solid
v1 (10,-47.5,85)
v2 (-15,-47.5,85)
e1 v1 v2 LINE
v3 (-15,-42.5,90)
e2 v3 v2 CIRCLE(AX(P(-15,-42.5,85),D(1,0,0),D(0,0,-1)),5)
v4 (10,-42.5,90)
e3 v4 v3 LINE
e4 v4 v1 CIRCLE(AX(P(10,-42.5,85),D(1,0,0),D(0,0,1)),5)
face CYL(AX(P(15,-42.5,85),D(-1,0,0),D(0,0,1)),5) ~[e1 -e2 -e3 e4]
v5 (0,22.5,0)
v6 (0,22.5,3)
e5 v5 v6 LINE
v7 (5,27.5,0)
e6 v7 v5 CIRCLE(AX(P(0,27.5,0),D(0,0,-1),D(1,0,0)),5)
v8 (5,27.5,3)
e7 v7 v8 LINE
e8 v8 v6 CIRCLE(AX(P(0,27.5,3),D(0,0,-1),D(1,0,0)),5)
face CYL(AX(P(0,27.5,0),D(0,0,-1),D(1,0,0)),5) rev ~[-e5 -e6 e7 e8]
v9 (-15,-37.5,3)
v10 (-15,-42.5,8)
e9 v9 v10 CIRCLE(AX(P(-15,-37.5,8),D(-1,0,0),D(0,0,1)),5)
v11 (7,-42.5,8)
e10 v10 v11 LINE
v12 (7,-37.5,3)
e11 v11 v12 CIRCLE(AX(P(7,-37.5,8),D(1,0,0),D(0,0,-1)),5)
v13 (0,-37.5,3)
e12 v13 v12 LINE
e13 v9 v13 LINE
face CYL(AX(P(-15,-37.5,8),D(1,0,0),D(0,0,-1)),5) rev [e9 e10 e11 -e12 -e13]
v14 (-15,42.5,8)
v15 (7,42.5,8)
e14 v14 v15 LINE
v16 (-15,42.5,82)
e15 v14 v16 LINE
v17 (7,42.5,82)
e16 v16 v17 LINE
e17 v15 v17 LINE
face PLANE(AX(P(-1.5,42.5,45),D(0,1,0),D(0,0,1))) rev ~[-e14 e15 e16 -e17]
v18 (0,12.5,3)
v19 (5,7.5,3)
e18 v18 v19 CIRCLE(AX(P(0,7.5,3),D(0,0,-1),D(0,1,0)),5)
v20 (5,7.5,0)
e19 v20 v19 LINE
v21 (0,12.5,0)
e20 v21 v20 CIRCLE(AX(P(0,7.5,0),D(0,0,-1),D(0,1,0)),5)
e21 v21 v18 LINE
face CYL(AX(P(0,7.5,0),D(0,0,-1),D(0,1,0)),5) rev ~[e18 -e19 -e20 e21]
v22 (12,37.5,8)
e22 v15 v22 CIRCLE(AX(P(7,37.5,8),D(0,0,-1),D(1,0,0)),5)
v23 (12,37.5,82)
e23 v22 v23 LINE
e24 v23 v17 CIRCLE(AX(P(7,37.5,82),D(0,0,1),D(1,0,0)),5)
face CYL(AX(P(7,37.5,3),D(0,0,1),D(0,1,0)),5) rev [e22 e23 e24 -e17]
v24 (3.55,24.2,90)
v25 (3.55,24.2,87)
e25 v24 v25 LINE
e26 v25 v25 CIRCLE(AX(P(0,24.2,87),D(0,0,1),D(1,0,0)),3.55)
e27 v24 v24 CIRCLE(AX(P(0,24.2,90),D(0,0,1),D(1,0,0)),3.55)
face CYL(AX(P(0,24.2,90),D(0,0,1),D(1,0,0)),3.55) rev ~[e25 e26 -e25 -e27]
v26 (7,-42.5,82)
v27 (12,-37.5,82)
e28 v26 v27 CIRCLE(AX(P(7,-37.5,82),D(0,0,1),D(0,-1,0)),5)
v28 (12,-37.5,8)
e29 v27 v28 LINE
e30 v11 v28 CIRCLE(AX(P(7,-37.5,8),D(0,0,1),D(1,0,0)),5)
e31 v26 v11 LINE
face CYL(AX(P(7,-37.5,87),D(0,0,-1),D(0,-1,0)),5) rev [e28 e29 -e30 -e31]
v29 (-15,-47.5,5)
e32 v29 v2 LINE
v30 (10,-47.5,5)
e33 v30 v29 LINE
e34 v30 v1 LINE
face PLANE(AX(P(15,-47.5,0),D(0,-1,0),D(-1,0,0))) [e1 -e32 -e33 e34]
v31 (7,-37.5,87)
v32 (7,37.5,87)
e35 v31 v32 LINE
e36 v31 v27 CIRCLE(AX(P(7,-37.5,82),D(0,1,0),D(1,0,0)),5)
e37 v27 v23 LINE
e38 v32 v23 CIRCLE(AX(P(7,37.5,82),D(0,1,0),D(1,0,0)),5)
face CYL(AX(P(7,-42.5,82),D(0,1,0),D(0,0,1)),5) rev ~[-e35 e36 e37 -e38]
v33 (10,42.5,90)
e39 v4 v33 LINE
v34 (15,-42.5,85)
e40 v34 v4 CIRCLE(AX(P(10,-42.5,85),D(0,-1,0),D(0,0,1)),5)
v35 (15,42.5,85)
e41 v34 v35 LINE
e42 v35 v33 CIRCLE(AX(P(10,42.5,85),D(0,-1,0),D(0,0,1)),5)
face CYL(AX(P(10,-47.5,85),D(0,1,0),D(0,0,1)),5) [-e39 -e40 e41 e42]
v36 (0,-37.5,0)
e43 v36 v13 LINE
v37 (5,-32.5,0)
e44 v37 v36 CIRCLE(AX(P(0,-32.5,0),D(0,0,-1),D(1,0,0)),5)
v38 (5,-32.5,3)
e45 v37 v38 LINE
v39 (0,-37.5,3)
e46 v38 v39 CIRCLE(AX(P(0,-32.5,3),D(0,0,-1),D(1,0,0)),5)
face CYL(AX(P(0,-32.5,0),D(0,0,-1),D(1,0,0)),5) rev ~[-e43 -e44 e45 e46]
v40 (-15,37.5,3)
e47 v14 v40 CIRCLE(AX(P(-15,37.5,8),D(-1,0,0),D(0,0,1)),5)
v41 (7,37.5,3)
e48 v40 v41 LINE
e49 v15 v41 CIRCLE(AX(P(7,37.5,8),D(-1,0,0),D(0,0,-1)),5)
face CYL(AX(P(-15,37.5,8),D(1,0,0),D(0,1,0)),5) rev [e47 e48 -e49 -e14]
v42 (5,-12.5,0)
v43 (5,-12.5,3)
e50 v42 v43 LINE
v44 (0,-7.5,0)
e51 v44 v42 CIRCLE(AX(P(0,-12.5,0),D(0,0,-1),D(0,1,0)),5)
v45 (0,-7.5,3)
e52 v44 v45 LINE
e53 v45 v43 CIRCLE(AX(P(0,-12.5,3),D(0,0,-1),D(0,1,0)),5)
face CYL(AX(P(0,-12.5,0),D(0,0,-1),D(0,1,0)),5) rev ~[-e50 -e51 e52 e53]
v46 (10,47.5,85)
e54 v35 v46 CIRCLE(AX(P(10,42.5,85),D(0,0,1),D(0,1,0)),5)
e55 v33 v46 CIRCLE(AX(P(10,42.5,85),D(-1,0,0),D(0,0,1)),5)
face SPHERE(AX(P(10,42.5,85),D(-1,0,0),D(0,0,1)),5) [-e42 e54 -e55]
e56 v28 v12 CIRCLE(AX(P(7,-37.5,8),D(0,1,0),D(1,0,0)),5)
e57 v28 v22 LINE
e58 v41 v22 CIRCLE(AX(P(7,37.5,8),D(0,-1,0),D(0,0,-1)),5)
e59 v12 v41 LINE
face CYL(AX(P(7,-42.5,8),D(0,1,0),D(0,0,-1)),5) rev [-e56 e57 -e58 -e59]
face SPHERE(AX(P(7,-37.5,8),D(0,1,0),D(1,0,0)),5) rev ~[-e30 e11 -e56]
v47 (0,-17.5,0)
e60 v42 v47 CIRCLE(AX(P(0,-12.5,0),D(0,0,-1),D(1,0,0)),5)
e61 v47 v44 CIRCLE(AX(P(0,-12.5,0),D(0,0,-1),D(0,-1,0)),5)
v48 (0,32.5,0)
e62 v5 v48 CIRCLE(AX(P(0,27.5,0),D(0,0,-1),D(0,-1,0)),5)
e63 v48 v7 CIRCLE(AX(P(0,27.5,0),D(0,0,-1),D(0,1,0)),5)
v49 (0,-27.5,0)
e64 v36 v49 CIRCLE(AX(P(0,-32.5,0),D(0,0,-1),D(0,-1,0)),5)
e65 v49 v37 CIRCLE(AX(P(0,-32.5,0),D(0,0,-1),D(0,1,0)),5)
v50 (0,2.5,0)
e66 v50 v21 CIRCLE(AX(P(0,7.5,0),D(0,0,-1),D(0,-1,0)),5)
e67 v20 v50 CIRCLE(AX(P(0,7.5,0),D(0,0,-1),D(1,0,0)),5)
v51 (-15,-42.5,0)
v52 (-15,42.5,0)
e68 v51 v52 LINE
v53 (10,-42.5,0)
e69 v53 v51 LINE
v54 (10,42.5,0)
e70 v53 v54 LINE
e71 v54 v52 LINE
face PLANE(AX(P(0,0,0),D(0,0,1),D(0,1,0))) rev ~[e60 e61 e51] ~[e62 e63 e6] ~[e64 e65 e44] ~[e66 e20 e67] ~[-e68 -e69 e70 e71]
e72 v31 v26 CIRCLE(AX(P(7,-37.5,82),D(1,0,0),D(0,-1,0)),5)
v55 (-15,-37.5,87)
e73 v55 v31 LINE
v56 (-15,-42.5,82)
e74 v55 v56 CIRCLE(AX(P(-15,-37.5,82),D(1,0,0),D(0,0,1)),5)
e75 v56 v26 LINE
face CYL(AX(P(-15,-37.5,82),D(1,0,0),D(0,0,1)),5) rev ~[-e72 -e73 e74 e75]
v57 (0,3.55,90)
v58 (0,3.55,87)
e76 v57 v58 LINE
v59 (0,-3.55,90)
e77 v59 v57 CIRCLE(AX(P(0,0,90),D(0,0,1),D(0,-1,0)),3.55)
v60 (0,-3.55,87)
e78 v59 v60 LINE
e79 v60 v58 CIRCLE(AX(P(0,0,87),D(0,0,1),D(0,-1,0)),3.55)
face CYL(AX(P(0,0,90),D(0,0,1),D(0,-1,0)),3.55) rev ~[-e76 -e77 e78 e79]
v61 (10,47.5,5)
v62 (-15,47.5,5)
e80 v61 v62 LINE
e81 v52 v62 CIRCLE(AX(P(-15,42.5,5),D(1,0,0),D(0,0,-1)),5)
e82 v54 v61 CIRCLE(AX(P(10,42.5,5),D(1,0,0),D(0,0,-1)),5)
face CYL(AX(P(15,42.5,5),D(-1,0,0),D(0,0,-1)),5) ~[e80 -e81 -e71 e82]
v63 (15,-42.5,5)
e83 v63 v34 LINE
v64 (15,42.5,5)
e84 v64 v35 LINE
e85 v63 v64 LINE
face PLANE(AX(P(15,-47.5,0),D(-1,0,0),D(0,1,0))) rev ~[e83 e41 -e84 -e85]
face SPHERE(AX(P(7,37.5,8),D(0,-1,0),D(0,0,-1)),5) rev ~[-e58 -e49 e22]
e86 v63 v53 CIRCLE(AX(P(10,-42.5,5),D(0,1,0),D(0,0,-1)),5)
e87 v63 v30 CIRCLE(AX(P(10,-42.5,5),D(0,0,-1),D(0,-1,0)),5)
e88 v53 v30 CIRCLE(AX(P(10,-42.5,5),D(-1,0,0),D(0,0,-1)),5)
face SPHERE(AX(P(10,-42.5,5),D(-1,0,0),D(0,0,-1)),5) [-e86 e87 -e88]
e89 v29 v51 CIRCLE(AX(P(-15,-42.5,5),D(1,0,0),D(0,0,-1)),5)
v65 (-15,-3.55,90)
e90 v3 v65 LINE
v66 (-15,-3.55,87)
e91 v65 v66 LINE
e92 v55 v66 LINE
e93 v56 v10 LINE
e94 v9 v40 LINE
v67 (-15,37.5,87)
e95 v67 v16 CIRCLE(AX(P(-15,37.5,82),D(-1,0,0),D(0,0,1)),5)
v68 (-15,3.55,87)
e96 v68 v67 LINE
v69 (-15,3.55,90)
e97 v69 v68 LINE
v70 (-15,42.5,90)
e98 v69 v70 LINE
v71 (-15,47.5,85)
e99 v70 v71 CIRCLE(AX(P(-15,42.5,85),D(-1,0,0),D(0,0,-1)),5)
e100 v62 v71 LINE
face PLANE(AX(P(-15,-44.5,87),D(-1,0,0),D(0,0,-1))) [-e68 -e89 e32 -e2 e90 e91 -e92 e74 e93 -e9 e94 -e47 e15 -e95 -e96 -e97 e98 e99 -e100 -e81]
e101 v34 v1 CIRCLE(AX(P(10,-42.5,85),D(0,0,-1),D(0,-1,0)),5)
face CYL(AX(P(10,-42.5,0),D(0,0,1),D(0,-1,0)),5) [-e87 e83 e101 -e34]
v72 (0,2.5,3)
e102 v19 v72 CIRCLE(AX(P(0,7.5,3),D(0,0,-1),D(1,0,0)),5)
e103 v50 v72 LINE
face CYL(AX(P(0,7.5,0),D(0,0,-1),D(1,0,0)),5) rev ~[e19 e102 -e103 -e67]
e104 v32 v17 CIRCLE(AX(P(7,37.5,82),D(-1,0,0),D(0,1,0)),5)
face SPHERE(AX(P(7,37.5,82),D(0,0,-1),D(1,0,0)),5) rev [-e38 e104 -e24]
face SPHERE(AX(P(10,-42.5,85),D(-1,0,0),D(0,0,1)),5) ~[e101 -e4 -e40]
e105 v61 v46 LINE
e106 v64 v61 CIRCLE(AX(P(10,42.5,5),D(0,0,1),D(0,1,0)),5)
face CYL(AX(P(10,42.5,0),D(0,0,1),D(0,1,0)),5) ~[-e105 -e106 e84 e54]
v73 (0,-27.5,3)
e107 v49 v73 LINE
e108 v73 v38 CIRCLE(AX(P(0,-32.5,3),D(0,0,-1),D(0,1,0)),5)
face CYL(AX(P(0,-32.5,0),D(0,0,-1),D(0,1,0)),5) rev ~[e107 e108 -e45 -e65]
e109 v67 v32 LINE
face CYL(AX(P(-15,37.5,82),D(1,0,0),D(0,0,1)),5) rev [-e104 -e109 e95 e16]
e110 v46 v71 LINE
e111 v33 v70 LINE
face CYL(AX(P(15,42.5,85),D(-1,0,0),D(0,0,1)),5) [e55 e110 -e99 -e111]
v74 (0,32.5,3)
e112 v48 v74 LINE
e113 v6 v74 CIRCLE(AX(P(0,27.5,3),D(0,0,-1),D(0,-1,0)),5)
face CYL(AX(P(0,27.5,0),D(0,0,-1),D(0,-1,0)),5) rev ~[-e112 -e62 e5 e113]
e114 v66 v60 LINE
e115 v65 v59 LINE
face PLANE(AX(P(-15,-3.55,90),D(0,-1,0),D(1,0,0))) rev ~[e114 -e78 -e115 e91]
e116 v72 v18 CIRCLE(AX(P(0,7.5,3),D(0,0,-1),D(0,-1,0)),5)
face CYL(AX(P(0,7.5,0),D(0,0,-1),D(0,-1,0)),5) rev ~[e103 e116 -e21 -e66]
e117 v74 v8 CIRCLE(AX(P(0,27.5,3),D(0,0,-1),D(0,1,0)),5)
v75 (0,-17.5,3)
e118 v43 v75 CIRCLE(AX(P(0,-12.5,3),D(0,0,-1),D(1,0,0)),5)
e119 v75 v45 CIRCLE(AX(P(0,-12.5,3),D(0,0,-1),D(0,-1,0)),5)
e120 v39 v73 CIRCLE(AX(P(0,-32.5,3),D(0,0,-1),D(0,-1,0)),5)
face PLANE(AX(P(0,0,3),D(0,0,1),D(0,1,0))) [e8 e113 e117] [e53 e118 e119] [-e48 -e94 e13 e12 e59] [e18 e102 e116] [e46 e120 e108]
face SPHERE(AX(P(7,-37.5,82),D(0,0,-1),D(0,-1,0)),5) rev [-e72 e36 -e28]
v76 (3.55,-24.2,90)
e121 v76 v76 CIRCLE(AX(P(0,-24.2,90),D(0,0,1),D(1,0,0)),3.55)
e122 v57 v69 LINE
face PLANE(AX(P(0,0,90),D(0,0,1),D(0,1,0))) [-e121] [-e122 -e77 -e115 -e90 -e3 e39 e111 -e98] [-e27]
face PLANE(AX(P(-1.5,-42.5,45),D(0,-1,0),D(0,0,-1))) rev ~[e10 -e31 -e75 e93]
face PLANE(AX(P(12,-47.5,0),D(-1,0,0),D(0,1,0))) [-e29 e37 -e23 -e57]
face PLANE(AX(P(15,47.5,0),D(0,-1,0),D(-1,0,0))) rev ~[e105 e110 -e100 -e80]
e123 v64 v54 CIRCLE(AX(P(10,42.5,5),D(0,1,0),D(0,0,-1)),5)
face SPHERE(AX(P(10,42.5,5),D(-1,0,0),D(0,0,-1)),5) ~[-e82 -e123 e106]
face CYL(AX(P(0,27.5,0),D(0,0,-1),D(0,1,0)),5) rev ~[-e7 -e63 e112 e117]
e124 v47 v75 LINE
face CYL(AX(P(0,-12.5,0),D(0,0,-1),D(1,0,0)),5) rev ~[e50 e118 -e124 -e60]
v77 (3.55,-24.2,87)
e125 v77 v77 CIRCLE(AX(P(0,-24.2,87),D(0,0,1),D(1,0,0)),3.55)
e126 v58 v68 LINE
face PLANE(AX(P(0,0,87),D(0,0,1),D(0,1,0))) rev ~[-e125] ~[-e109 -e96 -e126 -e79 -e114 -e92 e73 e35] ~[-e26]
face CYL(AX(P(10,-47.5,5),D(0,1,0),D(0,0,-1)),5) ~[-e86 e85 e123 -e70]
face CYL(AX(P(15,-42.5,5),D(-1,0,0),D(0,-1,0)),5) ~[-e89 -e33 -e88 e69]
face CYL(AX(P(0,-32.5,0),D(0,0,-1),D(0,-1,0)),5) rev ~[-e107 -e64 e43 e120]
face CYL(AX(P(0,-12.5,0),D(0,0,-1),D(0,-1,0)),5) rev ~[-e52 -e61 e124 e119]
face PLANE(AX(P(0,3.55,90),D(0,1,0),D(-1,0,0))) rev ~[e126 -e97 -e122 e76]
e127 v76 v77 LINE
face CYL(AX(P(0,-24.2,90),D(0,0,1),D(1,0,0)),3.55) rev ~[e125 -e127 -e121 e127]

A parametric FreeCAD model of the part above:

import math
import FreeCAD as App
import Part
import Sketcher
from FreeCAD import Vector
Q = App.Units.Quantity


def edges_at(feature, points):
    """Names of the edges that pass closest to the given points."""
    edges = feature.Shape.Edges
    near = lambda p: min(range(len(edges)), key=lambda i: edges[i].distToShape(Part.Vertex(*p))[0])
    return sorted({f"Edge{near(p) + 1}" for p in points})


def faces_at(feature, points):
    """Names of the faces that lie closest to the given points."""
    faces = feature.Shape.Faces
    near = lambda p: min(range(len(faces)), key=lambda i: faces[i].distToShape(Part.Vertex(*p))[0])
    return sorted({f"Face{near(p) + 1}" for p in points})

doc = App.newDocument("Part")
body = doc.addObject("PartDesign::Body", "Body")

sketch1 = body.newObject("Sketcher::SketchObject", "Sketch")
sketch1.AttachmentSupport = (doc.getObject("XY_Plane"), [""])
sketch1.MapMode = "FlatFace"
sketch1.addGeometry(Part.LineSegment(Vector(-15, -48, 0), Vector(15, -48, 0)), False)
sketch1.addGeometry(Part.LineSegment(Vector(15, -48, 0), Vector(15, 48, 0)), False)
sketch1.addGeometry(Part.LineSegment(Vector(15, 48, 0), Vector(-15, 48, 0)), False)
sketch1.addGeometry(Part.LineSegment(Vector(-15, 48, 0), Vector(-15, -48, 0)), False)
sketch1.addConstraint(Sketcher.Constraint("Coincident", 0, 2, 1, 1))
sketch1.addConstraint(Sketcher.Constraint("Coincident", 1, 2, 2, 1))
sketch1.addConstraint(Sketcher.Constraint("Coincident", 2, 2, 3, 1))
sketch1.addConstraint(Sketcher.Constraint("Coincident", 3, 2, 0, 1))
sketch1.addConstraint(Sketcher.Constraint("Horizontal", 0))
sketch1.addConstraint(Sketcher.Constraint("Vertical", 1))
sketch1.addConstraint(Sketcher.Constraint("Horizontal", 2))
sketch1.addConstraint(Sketcher.Constraint("Vertical", 3))
sketch1.addConstraint(Sketcher.Constraint("Symmetric", 0, 2, 2, 2, -1, 1))
sketch1.addConstraint(Sketcher.Constraint("DistanceX", 0, 1, 0, 2, Q("30 mm")))
sketch1.addConstraint(Sketcher.Constraint("DistanceY", 1, 1, 1, 2, Q("95 mm")))
pad1 = body.newObject("PartDesign::Pad", "Pad")
pad1.Profile = sketch1
pad1.Length = 90
doc.recompute()

thickness = body.newObject("PartDesign::Thickness", "Thickness")
thickness.Base = (pad1, faces_at(pad1, [(-15, 0, 45)]))
thickness.Value = 3
thickness.Reversed = True
thickness.Join = "Intersection"

sketch2 = body.newObject("Sketcher::SketchObject", "Sketch001")
sketch2.AttachmentSupport = (doc.getObject("XZ_Plane"), [""])
sketch2.MapMode = "FlatFace"
sketch2.AttachmentOffset = App.Placement(Vector(0, 0, -44.5), App.Rotation())
sketch2.addGeometry(Part.LineSegment(Vector(12, 3, 0), Vector(-15, 3, 0)), False)
sketch2.addGeometry(Part.LineSegment(Vector(-15, 3, 0), Vector(-15, 87, 0)), False)
sketch2.addGeometry(Part.LineSegment(Vector(-15, 87, 0), Vector(12, 87, 0)), False)
sketch2.addGeometry(Part.LineSegment(Vector(12, 87, 0), Vector(12, 3, 0)), False)
sketch2.addConstraint(Sketcher.Constraint("Coincident", 0, 2, 1, 1))
sketch2.addConstraint(Sketcher.Constraint("Coincident", 1, 2, 2, 1))
sketch2.addConstraint(Sketcher.Constraint("Coincident", 2, 2, 3, 1))
sketch2.addConstraint(Sketcher.Constraint("Coincident", 3, 2, 0, 1))
sketch2.addConstraint(Sketcher.Constraint("Horizontal", 0))
sketch2.addConstraint(Sketcher.Constraint("Vertical", 1))
sketch2.addConstraint(Sketcher.Constraint("Horizontal", 2))
sketch2.addConstraint(Sketcher.Constraint("Vertical", 3))
sketch2.addConstraint(Sketcher.Constraint("DistanceX", 0, 2, 0, 1, Q("27 mm")))
sketch2.addConstraint(Sketcher.Constraint("DistanceY", 1, 1, 1, 2, Q("84 mm")))
sketch2.addConstraint(Sketcher.Constraint("DistanceX", 0, 2, -1, 1, Q("15 mm")))
sketch2.addConstraint(Sketcher.Constraint("DistanceY", -1, 1, 0, 2, Q("3 mm")))
pad2 = body.newObject("PartDesign::Pad", "Pad001")
pad2.Profile = sketch2
pad2.Length = 2

sketch3 = body.newObject("Sketcher::SketchObject", "Sketch002")
sketch3.AttachmentSupport = (doc.getObject("XZ_Plane"), [""])
sketch3.MapMode = "FlatFace"
sketch3.AttachmentOffset = App.Placement(Vector(0, 0, 44.5), App.Rotation())
sketch3.addGeometry(Part.LineSegment(Vector(12, 87, 0), Vector(-15, 87, 0)), False)
sketch3.addGeometry(Part.LineSegment(Vector(-15, 87, 0), Vector(-15, 3, 0)), False)
sketch3.addGeometry(Part.LineSegment(Vector(-15, 3, 0), Vector(12, 3, 0)), False)
sketch3.addGeometry(Part.LineSegment(Vector(12, 3, 0), Vector(12, 87, 0)), False)
sketch3.addConstraint(Sketcher.Constraint("Coincident", 0, 2, 1, 1))
sketch3.addConstraint(Sketcher.Constraint("Coincident", 1, 2, 2, 1))
sketch3.addConstraint(Sketcher.Constraint("Coincident", 2, 2, 3, 1))
sketch3.addConstraint(Sketcher.Constraint("Coincident", 3, 2, 0, 1))
sketch3.addConstraint(Sketcher.Constraint("Horizontal", 0))
sketch3.addConstraint(Sketcher.Constraint("Vertical", 1))
sketch3.addConstraint(Sketcher.Constraint("Horizontal", 2))
sketch3.addConstraint(Sketcher.Constraint("Vertical", 3))
sketch3.addConstraint(Sketcher.Constraint("DistanceX", 0, 2, 0, 1, Q("27 mm")))
sketch3.addConstraint(Sketcher.Constraint("DistanceY", 1, 2, 1, 1, Q("84 mm")))
sketch3.addConstraint(Sketcher.Constraint("DistanceX", 0, 2, -1, 1, Q("15 mm")))
sketch3.addConstraint(Sketcher.Constraint("DistanceY", -1, 1, 0, 2, Q("87 mm")))
pad3 = body.newObject("PartDesign::Pad", "Pad002")
pad3.Profile = sketch3
pad3.Length = 2
pad3.Reversed = True

sketch4 = body.newObject("Sketcher::SketchObject", "Sketch003")
sketch4.AttachmentSupport = (doc.getObject("XY_Plane"), [""])
sketch4.MapMode = "FlatFace"
sketch4.AttachmentOffset = App.Placement(Vector(0, 0, 90), App.Rotation())
sketch4.addGeometry(Part.Circle(Vector(0, 24.2, 0), Vector(0, 0, 1), 3.5), False)
sketch4.addGeometry(Part.LineSegment(Vector(0, 3.5, 0), Vector(-15, 3.5, 0)), False)
sketch4.addGeometry(Part.LineSegment(Vector(-15, 3.5, 0), Vector(-15, -3.5, 0)), False)
sketch4.addGeometry(Part.LineSegment(Vector(-15, -3.5, 0), Vector(0, -3.5, 0)), False)
sketch4.addGeometry(Part.ArcOfCircle(Part.Circle(Vector(0, 0, 0), Vector(0, 0, 1), 3.5), math.radians(-90), math.radians(90)), False)
sketch4.addGeometry(Part.Circle(Vector(0, -24.2, 0), Vector(0, 0, 1), 3.5), False)
sketch4.addConstraint(Sketcher.Constraint("Coincident", 1, 2, 2, 1))
sketch4.addConstraint(Sketcher.Constraint("Coincident", 2, 2, 3, 1))
sketch4.addConstraint(Sketcher.Constraint("Tangent", 3, 2, 4, 1))
sketch4.addConstraint(Sketcher.Constraint("Tangent", 4, 2, 1, 1))
sketch4.addConstraint(Sketcher.Constraint("Horizontal", 1))
sketch4.addConstraint(Sketcher.Constraint("Vertical", 2))
sketch4.addConstraint(Sketcher.Constraint("Horizontal", 3))
sketch4.addConstraint(Sketcher.Constraint("Coincident", 4, 3, -1, 1))
sketch4.addConstraint(Sketcher.Constraint("Equal", 0, 4))
sketch4.addConstraint(Sketcher.Constraint("Equal", 4, 5))
sketch4.addConstraint(Sketcher.Constraint("Symmetric", 0, 3, 5, 3, -1, 1))
sketch4.addConstraint(Sketcher.Constraint("PointOnObject", 0, 3, -2))
sketch4.addConstraint(Sketcher.Constraint("Diameter", 0, Q("7.1 mm")))
sketch4.addConstraint(Sketcher.Constraint("DistanceX", 1, 2, 1, 1, Q("15 mm")))
sketch4.addConstraint(Sketcher.Constraint("DistanceY", -1, 1, 0, 3, Q("24.2 mm")))
pocket1 = body.newObject("PartDesign::Pocket", "Pocket")
pocket1.Profile = sketch4
pocket1.Length = 10
doc.recompute()

fillet = body.newObject("PartDesign::Fillet", "Fillet")
fillet.Base = (pocket1, edges_at(pocket1, [
    (0, 47.5, 90),
    (12, 0, 3),
    (12, -42.5, 45),
    (-1.5, 42.5, 3),
    (12, 42.5, 45),
    (-1.5, -42.5, 87),
    (12, 0, 87),
    (-1.5, 42.5, 87),
    (-1.5, -42.5, 3),
    (0, -47.5, 90),
    (15, 0, 90),
    (0, -47.5, 0),
    (0, 47.5, 0),
    (15, 0, 0),
    (15, -47.5, 45),
    (15, 47.5, 45),
]))
fillet.Radius = 5

sketch5 = body.newObject("Sketcher::SketchObject", "Sketch004")
sketch5.AttachmentSupport = (doc.getObject("XY_Plane"), [""])
sketch5.MapMode = "FlatFace"
sketch5.addGeometry(Part.ArcOfCircle(Part.Circle(Vector(0, -32, 0), Vector(0, 0, 1), 5), math.radians(-90), math.radians(0)), False)
sketch5.addGeometry(Part.ArcOfCircle(Part.Circle(Vector(0, -32, 0), Vector(0, 0, 1), 5), math.radians(90), math.radians(270)), False)
sketch5.addGeometry(Part.ArcOfCircle(Part.Circle(Vector(0, -32, 0), Vector(0, 0, 1), 5), math.radians(0), math.radians(90)), False)
sketch5.addGeometry(Part.ArcOfCircle(Part.Circle(Vector(0, -12, 0), Vector(0, 0, 1), 5), math.radians(-90), math.radians(0)), False)
sketch5.addGeometry(Part.ArcOfCircle(Part.Circle(Vector(0, -12, 0), Vector(0, 0, 1), 5), math.radians(90), math.radians(270)), False)
sketch5.addGeometry(Part.ArcOfCircle(Part.Circle(Vector(0, -12, 0), Vector(0, 0, 1), 5), math.radians(0), math.radians(90)), False)
sketch5.addGeometry(Part.ArcOfCircle(Part.Circle(Vector(0, 8, 0), Vector(0, 0, 1), 5), math.radians(-90), math.radians(0)), False)
sketch5.addGeometry(Part.ArcOfCircle(Part.Circle(Vector(0, 8, 0), Vector(0, 0, 1), 5), math.radians(90), math.radians(270)), False)
sketch5.addGeometry(Part.ArcOfCircle(Part.Circle(Vector(0, 8, 0), Vector(0, 0, 1), 5), math.radians(0), math.radians(90)), False)
sketch5.addGeometry(Part.ArcOfCircle(Part.Circle(Vector(0, 28, 0), Vector(0, 0, 1), 5), math.radians(-90), math.radians(0)), False)
sketch5.addGeometry(Part.ArcOfCircle(Part.Circle(Vector(0, 28, 0), Vector(0, 0, 1), 5), math.radians(90), math.radians(270)), False)
sketch5.addGeometry(Part.ArcOfCircle(Part.Circle(Vector(0, 28, 0), Vector(0, 0, 1), 5), math.radians(0), math.radians(90)), False)
sketch5.addConstraint(Sketcher.Constraint("Tangent", 0, 1, 1, 2))
sketch5.addConstraint(Sketcher.Constraint("Tangent", 1, 1, 2, 2))
sketch5.addConstraint(Sketcher.Constraint("Tangent", 2, 1, 0, 2))
sketch5.addConstraint(Sketcher.Constraint("Tangent", 3, 1, 4, 2))
sketch5.addConstraint(Sketcher.Constraint("Tangent", 4, 1, 5, 2))
sketch5.addConstraint(Sketcher.Constraint("Tangent", 5, 1, 3, 2))
sketch5.addConstraint(Sketcher.Constraint("Tangent", 6, 1, 7, 2))
sketch5.addConstraint(Sketcher.Constraint("Tangent", 7, 1, 8, 2))
sketch5.addConstraint(Sketcher.Constraint("Tangent", 8, 1, 6, 2))
sketch5.addConstraint(Sketcher.Constraint("Tangent", 9, 1, 10, 2))
sketch5.addConstraint(Sketcher.Constraint("Tangent", 10, 1, 11, 2))
sketch5.addConstraint(Sketcher.Constraint("Tangent", 11, 1, 9, 2))
sketch5.addConstraint(Sketcher.Constraint("Equal", 2, 3))
sketch5.addConstraint(Sketcher.Constraint("Equal", 5, 6))
sketch5.addConstraint(Sketcher.Constraint("Equal", 8, 9))
sketch5.addConstraint(Sketcher.Constraint("PointOnObject", 0, 3, -2))
sketch5.addConstraint(Sketcher.Constraint("PointOnObject", 3, 3, -2))
sketch5.addConstraint(Sketcher.Constraint("PointOnObject", 6, 3, -2))
sketch5.addConstraint(Sketcher.Constraint("PointOnObject", 9, 3, -2))
sketch5.addConstraint(Sketcher.Constraint("PointOnObject", 0, 1, -2))
sketch5.addConstraint(Sketcher.Constraint("PointOnObject", 1, 1, -2))
sketch5.addConstraint(Sketcher.Constraint("PointOnObject", 3, 1, -2))
sketch5.addConstraint(Sketcher.Constraint("PointOnObject", 4, 1, -2))
sketch5.addConstraint(Sketcher.Constraint("PointOnObject", 6, 1, -2))
sketch5.addConstraint(Sketcher.Constraint("PointOnObject", 7, 1, -2))
sketch5.addConstraint(Sketcher.Constraint("PointOnObject", 9, 1, -2))
sketch5.addConstraint(Sketcher.Constraint("PointOnObject", 10, 1, -2))
sketch5.addConstraint(Sketcher.Constraint("Horizontal", 1, 3, 2, 1))
sketch5.addConstraint(Sketcher.Constraint("Horizontal", 4, 3, 5, 1))
sketch5.addConstraint(Sketcher.Constraint("Horizontal", 7, 3, 8, 1))
sketch5.addConstraint(Sketcher.Constraint("Horizontal", 10, 3, 11, 1))
sketch5.addConstraint(Sketcher.Constraint("Radius", 0, Q("5 mm")))
sketch5.addConstraint(Sketcher.Constraint("DistanceY", 0, 3, 3, 3, Q("20 mm")))
sketch5.addConstraint(Sketcher.Constraint("DistanceY", 3, 3, 6, 3, Q("20 mm")))
sketch5.addConstraint(Sketcher.Constraint("DistanceY", 6, 3, 9, 3, Q("20 mm")))
sketch5.addConstraint(Sketcher.Constraint("DistanceY", 0, 3, -1, 1, Q("32.5 mm")))
pocket2 = body.newObject("PartDesign::Pocket", "Pocket001")
pocket2.Profile = sketch5
pocket2.Length = 10
pocket2.Reversed = True

doc.recompute()
